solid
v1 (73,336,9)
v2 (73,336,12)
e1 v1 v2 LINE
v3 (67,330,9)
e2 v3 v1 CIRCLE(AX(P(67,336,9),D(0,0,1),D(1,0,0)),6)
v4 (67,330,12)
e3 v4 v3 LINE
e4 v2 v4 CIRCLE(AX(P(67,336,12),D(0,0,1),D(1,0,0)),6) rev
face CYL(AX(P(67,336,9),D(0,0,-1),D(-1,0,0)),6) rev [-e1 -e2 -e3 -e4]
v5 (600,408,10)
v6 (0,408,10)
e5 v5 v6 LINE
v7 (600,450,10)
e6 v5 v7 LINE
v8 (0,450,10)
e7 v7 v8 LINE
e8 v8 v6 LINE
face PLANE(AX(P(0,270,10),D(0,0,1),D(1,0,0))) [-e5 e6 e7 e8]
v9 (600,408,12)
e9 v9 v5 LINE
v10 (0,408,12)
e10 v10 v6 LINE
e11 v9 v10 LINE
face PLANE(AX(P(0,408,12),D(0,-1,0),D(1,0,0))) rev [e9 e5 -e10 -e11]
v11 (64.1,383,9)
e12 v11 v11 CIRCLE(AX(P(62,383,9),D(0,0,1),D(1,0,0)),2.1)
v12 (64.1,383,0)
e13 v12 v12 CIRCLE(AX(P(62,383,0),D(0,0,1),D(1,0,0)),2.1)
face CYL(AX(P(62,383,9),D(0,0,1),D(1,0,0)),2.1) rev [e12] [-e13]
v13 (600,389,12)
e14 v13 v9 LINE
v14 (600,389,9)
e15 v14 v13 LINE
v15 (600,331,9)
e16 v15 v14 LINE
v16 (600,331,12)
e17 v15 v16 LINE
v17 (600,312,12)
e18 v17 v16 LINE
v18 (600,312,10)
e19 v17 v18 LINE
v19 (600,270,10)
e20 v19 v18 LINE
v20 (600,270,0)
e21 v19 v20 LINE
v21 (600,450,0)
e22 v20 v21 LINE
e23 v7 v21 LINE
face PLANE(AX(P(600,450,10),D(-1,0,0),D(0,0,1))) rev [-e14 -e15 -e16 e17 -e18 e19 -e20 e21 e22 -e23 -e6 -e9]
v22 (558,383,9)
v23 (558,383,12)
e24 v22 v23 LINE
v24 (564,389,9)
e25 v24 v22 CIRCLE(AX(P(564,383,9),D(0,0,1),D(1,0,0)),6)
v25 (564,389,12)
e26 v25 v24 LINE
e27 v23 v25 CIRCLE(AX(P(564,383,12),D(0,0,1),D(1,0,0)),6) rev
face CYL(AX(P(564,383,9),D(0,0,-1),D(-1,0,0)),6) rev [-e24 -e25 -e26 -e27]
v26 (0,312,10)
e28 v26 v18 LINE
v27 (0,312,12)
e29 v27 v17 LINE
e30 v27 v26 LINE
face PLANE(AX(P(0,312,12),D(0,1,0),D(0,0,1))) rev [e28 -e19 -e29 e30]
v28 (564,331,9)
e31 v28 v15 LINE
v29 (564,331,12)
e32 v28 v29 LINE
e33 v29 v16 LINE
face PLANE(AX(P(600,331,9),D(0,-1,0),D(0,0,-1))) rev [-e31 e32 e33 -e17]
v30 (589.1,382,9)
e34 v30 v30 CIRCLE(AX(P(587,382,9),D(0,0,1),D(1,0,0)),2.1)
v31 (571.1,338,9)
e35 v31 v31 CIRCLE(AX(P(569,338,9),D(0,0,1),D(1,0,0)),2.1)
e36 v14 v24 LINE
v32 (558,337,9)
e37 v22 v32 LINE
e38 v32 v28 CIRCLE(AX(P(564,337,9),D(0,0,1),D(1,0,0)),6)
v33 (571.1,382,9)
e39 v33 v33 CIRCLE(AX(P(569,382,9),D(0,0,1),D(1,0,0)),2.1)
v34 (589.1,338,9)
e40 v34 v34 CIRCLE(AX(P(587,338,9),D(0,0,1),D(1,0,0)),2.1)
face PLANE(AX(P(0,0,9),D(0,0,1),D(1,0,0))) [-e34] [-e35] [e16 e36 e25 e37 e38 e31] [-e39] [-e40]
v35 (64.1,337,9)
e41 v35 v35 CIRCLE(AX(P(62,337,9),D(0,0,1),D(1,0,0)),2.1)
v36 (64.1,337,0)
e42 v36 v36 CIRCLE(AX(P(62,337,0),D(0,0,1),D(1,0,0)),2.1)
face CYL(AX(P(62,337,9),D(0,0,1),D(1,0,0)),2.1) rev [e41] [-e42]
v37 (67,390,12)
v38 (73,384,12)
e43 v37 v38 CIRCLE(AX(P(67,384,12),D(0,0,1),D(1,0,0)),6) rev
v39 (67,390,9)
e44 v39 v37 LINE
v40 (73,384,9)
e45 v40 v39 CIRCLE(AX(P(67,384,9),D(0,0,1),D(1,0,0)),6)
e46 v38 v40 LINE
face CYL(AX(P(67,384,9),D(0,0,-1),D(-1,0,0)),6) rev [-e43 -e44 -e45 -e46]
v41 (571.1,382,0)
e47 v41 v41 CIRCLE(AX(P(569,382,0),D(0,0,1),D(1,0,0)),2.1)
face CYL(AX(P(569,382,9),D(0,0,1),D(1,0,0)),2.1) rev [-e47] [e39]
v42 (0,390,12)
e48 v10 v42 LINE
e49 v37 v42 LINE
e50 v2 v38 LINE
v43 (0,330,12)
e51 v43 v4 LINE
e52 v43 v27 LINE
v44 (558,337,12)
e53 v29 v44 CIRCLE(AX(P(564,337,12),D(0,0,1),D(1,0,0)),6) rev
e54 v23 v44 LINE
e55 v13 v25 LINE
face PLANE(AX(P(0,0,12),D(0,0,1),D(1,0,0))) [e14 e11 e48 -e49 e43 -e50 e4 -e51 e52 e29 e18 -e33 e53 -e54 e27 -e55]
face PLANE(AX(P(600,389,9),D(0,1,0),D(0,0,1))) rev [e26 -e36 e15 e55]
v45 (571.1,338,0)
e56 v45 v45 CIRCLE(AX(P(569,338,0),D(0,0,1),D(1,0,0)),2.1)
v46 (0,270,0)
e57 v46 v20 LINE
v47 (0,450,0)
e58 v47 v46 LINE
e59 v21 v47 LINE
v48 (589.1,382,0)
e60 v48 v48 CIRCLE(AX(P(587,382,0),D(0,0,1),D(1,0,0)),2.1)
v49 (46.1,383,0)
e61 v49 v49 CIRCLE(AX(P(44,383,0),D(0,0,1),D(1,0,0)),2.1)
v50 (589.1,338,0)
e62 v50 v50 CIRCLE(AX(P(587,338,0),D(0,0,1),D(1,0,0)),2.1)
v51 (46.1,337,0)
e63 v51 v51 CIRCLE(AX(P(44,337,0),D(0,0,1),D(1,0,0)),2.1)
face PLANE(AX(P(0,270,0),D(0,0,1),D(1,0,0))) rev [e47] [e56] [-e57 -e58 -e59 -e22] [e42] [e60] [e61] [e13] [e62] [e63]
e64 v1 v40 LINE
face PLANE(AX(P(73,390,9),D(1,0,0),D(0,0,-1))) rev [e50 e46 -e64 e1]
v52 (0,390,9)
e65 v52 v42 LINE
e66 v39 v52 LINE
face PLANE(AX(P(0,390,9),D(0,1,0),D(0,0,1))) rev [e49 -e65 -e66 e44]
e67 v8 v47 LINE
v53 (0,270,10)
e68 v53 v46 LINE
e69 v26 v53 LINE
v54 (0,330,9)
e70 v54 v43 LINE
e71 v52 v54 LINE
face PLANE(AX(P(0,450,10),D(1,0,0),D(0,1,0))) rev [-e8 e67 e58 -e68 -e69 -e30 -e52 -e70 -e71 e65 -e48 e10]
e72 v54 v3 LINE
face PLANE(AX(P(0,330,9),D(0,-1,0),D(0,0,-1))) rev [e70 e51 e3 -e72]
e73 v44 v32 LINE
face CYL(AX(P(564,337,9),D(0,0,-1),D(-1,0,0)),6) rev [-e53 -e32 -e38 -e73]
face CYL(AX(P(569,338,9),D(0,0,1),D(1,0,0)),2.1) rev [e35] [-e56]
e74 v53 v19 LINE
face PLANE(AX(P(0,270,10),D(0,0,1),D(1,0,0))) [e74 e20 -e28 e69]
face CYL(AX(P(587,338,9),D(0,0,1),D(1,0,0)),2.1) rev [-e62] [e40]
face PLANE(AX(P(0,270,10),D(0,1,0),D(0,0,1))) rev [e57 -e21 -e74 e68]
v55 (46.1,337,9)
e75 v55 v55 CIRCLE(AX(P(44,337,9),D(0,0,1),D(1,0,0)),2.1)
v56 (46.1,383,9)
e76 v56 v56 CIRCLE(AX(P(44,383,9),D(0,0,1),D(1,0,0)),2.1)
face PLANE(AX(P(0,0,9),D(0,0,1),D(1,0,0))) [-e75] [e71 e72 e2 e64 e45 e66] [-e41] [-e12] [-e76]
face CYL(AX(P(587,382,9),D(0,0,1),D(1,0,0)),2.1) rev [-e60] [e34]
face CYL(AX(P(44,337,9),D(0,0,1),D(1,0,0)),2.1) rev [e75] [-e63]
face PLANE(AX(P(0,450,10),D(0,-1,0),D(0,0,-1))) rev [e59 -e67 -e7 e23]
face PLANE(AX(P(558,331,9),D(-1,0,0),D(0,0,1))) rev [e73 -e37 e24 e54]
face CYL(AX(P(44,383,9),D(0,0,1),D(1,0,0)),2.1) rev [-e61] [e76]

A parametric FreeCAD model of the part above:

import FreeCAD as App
import Part
import Sketcher


def edges_at(feature, points):
    """Names of the edges that pass closest to the given points."""
    edges = feature.Shape.Edges
    near = lambda p: min(range(len(edges)), key=lambda i: edges[i].distToShape(Part.Vertex(*p))[0])
    return sorted({f"Edge{near(p) + 1}" for p in points})


def add_polygon(sketch, points):
    """Adds a closed chain of lines whose ends are joined by coincident constraints."""
    first, n = sketch.GeometryCount, len(points)
    for a, b in zip(points, points[1:] + points[:1]):
        sketch.addGeometry(Part.LineSegment(App.Vector(*a, 0), App.Vector(*b, 0)), False)
    for i in range(n):
        sketch.addConstraint(Sketcher.Constraint("Coincident", first + i, 2, first + (i + 1) % n, 1))

doc = App.newDocument("Part")
params = doc.addObject("Spreadsheet::Sheet", "Params")
for row, (alias, value) in enumerate([
    ("sketch1_width", "600 mm"),
    ("sketch1_height", "180 mm"),
    ("pad1_length", "10 mm"),
    ("sketch2_width", "600 mm"),
    ("sketch2_height", "96 mm"),
    ("pad2_length", "2 mm"),
    ("sketch3_width", "42 mm"),
    ("sketch3_width2", "73 mm"),
    ("sketch3_height", "58 mm"),
    ("sketch3_height2", "60 mm"),
    ("pocket1_length", "3 mm"),
    ("fillet_radius", "6 mm"),
    ("sketch4_diameter", "4.2 mm"),
    ("hole_diameter", "4.2 mm"),
    ("sketch5_diameter", "4.2 mm"),
    ("hole2_diameter", "4.2 mm"),
    ("hole2_depth", "17 mm"),
], start=1):
    params.set(f"A{row}", alias)
    params.set(f"B{row}", "=" + value)
    params.setAlias(f"B{row}", alias)

body = doc.addObject("PartDesign::Body", "Body")

# Sketch on XY plane
sketch1 = body.newObject("Sketcher::SketchObject", "Sketch")
sketch1.AttachmentSupport = (doc.getObject("XY_Plane"), [""])
sketch1.MapMode = "FlatFace"
add_polygon(sketch1, [(0, 450), (0, 270), (600, 270), (600, 450)])  # lines 0-3
sketch1.addConstraint([
    Sketcher.Constraint("Vertical", 0),
    Sketcher.Constraint("Horizontal", 1),
    Sketcher.Constraint("Vertical", 2),
    Sketcher.Constraint("Horizontal", 3),
    Sketcher.Constraint("PointOnObject", 0, 2, -2),
    Sketcher.Constraint("DistanceX", 1, 1, 1, 2, 600.0),
    Sketcher.Constraint("DistanceY", 0, 2, 0, 1, 180.0),
    Sketcher.Constraint("DistanceY", -1, 1, 0, 2, 270.0),
])
sketch1.setExpression("Constraints[9]", "Params.sketch1_width")
sketch1.setExpression("Constraints[10]", "Params.sketch1_height")
pad1 = body.newObject("PartDesign::Pad", "Pad")
pad1.Profile = sketch1
pad1.setExpression("Length", "Params.pad1_length")

# Sketch on XY plane
sketch2 = body.newObject("Sketcher::SketchObject", "Sketch001")
sketch2.AttachmentSupport = (doc.getObject("XY_Plane"), [""])
sketch2.MapMode = "FlatFace"
sketch2.AttachmentOffset = App.Placement(App.Vector(0, 0, 10), App.Rotation())
add_polygon(sketch2, [(0, 408), (0, 312), (600, 312), (600, 408)])  # lines 0-3
sketch2.addConstraint([
    Sketcher.Constraint("Vertical", 0),
    Sketcher.Constraint("Horizontal", 1),
    Sketcher.Constraint("Vertical", 2),
    Sketcher.Constraint("Horizontal", 3),
    Sketcher.Constraint("PointOnObject", 0, 2, -2),
    Sketcher.Constraint("DistanceX", 1, 1, 1, 2, 600.0),
    Sketcher.Constraint("DistanceY", 0, 2, 0, 1, 96.0),
    Sketcher.Constraint("DistanceY", -1, 1, 0, 2, 312.0),
])
sketch2.setExpression("Constraints[9]", "Params.sketch2_width")
sketch2.setExpression("Constraints[10]", "Params.sketch2_height")
pad2 = body.newObject("PartDesign::Pad", "Pad001")
pad2.Profile = sketch2
pad2.setExpression("Length", "Params.pad2_length")

# Sketch on XY plane
sketch3 = body.newObject("Sketcher::SketchObject", "Sketch002")
sketch3.AttachmentSupport = (doc.getObject("XY_Plane"), [""])
sketch3.MapMode = "FlatFace"
sketch3.AttachmentOffset = App.Placement(App.Vector(0, 0, 12), App.Rotation())
add_polygon(sketch3, [(558, 389), (558, 331), (600, 331), (600, 389)])  # lines 0-3
add_polygon(sketch3, [(0, 390), (0, 330), (73, 330), (73, 390)])  # lines 4-7
sketch3.addConstraint([
    Sketcher.Constraint("Vertical", 0),
    Sketcher.Constraint("Horizontal", 1),
    Sketcher.Constraint("Vertical", 2),
    Sketcher.Constraint("Horizontal", 3),
    Sketcher.Constraint("Vertical", 4),
    Sketcher.Constraint("Horizontal", 5),
    Sketcher.Constraint("Vertical", 6),
    Sketcher.Constraint("Horizontal", 7),
    Sketcher.Constraint("PointOnObject", 4, 2, -2),
    Sketcher.Constraint("DistanceX", 1, 1, 1, 2, 42.0),
    Sketcher.Constraint("DistanceX", 5, 1, 5, 2, 73.0),
    Sketcher.Constraint("DistanceY", 0, 2, 0, 1, 58.0),
    Sketcher.Constraint("DistanceY", 4, 2, 4, 1, 60.0),
    Sketcher.Constraint("DistanceX", -1, 1, 0, 2, 558.0),
    Sketcher.Constraint("DistanceY", -1, 1, 0, 2, 331.0),
    Sketcher.Constraint("DistanceY", -1, 1, 4, 2, 330.0),
])
sketch3.setExpression("Constraints[17]", "Params.sketch3_width")
sketch3.setExpression("Constraints[18]", "Params.sketch3_width2")
sketch3.setExpression("Constraints[19]", "Params.sketch3_height")
sketch3.setExpression("Constraints[20]", "Params.sketch3_height2")
pocket1 = body.newObject("PartDesign::Pocket", "Pocket")
pocket1.Profile = sketch3
pocket1.setExpression("Length", "Params.pocket1_length")
doc.recompute()

fillet = body.newObject("PartDesign::Fillet", "Fillet")
fillet.Base = (pocket1, edges_at(pocket1, [
    (73, 390, 10.5),
    (73, 330, 10.5),
    (558, 331, 10.5),
    (558, 389, 10.5),
]))
fillet.setExpression("Radius", "Params.fillet_radius")

# Sketch on XY plane
sketch4 = body.newObject("Sketcher::SketchObject", "Sketch003")
sketch4.AttachmentSupport = (doc.getObject("XY_Plane"), [""])
sketch4.MapMode = "FlatFace"
sketch4.AttachmentOffset = App.Placement(App.Vector(0, 0, 9), App.Rotation())
sketch4.addGeometry([
    Part.Circle(App.Vector(62, 383, 0), App.Vector(0, 0, 1), 2.1),
    Part.Circle(App.Vector(44, 383, 0), App.Vector(0, 0, 1), 2.1),
    Part.Circle(App.Vector(62, 337, 0), App.Vector(0, 0, 1), 2.1),
    Part.Circle(App.Vector(44, 337, 0), App.Vector(0, 0, 1), 2.1),
], False)
sketch4.addConstraint([
    Sketcher.Constraint("Equal", 0, 1),
    Sketcher.Constraint("Equal", 1, 2),
    Sketcher.Constraint("Equal", 2, 3),
    Sketcher.Constraint("Horizontal", 0, 3, 1, 3),
    Sketcher.Constraint("Horizontal", 2, 3, 3, 3),
    Sketcher.Constraint("Vertical", 0, 3, 2, 3),
    Sketcher.Constraint("Vertical", 1, 3, 3, 3),
    Sketcher.Constraint("Diameter", 0, 4.2),
    Sketcher.Constraint("DistanceX", -1, 1, 0, 3, 62.0),
    Sketcher.Constraint("DistanceY", -1, 1, 0, 3, 383.0),
    Sketcher.Constraint("DistanceX", -1, 1, 1, 3, 44.0),
    Sketcher.Constraint("DistanceY", -1, 1, 2, 3, 337.0),
])
sketch4.setExpression("Constraints[7]", "Params.sketch4_diameter")
doc.recompute()
hole = body.newObject("PartDesign::Hole", "Hole")
hole.Profile = sketch4
hole.ThreadType = "None"
hole.setExpression("Diameter", "Params.hole_diameter")
hole.DepthType = "ThroughAll"

# Sketch on XY plane
sketch5 = body.newObject("Sketcher::SketchObject", "Sketch004")
sketch5.AttachmentSupport = (doc.getObject("XY_Plane"), [""])
sketch5.MapMode = "FlatFace"
sketch5.AttachmentOffset = App.Placement(App.Vector(0, 0, 9), App.Rotation())
sketch5.addGeometry([
    Part.Circle(App.Vector(587, 382, 0), App.Vector(0, 0, 1), 2.1),
    Part.Circle(App.Vector(569, 382, 0), App.Vector(0, 0, 1), 2.1),
    Part.Circle(App.Vector(569, 338, 0), App.Vector(0, 0, 1), 2.1),
    Part.Circle(App.Vector(587, 338, 0), App.Vector(0, 0, 1), 2.1),
], False)
sketch5.addConstraint([
    Sketcher.Constraint("Equal", 0, 1),
    Sketcher.Constraint("Equal", 1, 2),
    Sketcher.Constraint("Equal", 2, 3),
    Sketcher.Constraint("Horizontal", 0, 3, 1, 3),
    Sketcher.Constraint("Horizontal", 2, 3, 3, 3),
    Sketcher.Constraint("Vertical", 1, 3, 2, 3),
    Sketcher.Constraint("Vertical", 0, 3, 3, 3),
    Sketcher.Constraint("Diameter", 0, 4.2),
    Sketcher.Constraint("DistanceX", -1, 1, 0, 3, 587.0),
    Sketcher.Constraint("DistanceY", -1, 1, 0, 3, 382.0),
    Sketcher.Constraint("DistanceX", -1, 1, 1, 3, 569.0),
    Sketcher.Constraint("DistanceY", -1, 1, 2, 3, 338.0),
])
sketch5.setExpression("Constraints[7]", "Params.sketch5_diameter")
doc.recompute()
hole2 = body.newObject("PartDesign::Hole", "Hole001")
hole2.Profile = sketch5
hole2.ThreadType = "None"
hole2.setExpression("Diameter", "Params.hole2_diameter")
hole2.DepthType = "Dimension"
hole2.setExpression("Depth", "Params.hole2_depth")
hole2.DrillPoint = "Angled"
hole2.DrillPointAngle = 118

doc.recompute()
